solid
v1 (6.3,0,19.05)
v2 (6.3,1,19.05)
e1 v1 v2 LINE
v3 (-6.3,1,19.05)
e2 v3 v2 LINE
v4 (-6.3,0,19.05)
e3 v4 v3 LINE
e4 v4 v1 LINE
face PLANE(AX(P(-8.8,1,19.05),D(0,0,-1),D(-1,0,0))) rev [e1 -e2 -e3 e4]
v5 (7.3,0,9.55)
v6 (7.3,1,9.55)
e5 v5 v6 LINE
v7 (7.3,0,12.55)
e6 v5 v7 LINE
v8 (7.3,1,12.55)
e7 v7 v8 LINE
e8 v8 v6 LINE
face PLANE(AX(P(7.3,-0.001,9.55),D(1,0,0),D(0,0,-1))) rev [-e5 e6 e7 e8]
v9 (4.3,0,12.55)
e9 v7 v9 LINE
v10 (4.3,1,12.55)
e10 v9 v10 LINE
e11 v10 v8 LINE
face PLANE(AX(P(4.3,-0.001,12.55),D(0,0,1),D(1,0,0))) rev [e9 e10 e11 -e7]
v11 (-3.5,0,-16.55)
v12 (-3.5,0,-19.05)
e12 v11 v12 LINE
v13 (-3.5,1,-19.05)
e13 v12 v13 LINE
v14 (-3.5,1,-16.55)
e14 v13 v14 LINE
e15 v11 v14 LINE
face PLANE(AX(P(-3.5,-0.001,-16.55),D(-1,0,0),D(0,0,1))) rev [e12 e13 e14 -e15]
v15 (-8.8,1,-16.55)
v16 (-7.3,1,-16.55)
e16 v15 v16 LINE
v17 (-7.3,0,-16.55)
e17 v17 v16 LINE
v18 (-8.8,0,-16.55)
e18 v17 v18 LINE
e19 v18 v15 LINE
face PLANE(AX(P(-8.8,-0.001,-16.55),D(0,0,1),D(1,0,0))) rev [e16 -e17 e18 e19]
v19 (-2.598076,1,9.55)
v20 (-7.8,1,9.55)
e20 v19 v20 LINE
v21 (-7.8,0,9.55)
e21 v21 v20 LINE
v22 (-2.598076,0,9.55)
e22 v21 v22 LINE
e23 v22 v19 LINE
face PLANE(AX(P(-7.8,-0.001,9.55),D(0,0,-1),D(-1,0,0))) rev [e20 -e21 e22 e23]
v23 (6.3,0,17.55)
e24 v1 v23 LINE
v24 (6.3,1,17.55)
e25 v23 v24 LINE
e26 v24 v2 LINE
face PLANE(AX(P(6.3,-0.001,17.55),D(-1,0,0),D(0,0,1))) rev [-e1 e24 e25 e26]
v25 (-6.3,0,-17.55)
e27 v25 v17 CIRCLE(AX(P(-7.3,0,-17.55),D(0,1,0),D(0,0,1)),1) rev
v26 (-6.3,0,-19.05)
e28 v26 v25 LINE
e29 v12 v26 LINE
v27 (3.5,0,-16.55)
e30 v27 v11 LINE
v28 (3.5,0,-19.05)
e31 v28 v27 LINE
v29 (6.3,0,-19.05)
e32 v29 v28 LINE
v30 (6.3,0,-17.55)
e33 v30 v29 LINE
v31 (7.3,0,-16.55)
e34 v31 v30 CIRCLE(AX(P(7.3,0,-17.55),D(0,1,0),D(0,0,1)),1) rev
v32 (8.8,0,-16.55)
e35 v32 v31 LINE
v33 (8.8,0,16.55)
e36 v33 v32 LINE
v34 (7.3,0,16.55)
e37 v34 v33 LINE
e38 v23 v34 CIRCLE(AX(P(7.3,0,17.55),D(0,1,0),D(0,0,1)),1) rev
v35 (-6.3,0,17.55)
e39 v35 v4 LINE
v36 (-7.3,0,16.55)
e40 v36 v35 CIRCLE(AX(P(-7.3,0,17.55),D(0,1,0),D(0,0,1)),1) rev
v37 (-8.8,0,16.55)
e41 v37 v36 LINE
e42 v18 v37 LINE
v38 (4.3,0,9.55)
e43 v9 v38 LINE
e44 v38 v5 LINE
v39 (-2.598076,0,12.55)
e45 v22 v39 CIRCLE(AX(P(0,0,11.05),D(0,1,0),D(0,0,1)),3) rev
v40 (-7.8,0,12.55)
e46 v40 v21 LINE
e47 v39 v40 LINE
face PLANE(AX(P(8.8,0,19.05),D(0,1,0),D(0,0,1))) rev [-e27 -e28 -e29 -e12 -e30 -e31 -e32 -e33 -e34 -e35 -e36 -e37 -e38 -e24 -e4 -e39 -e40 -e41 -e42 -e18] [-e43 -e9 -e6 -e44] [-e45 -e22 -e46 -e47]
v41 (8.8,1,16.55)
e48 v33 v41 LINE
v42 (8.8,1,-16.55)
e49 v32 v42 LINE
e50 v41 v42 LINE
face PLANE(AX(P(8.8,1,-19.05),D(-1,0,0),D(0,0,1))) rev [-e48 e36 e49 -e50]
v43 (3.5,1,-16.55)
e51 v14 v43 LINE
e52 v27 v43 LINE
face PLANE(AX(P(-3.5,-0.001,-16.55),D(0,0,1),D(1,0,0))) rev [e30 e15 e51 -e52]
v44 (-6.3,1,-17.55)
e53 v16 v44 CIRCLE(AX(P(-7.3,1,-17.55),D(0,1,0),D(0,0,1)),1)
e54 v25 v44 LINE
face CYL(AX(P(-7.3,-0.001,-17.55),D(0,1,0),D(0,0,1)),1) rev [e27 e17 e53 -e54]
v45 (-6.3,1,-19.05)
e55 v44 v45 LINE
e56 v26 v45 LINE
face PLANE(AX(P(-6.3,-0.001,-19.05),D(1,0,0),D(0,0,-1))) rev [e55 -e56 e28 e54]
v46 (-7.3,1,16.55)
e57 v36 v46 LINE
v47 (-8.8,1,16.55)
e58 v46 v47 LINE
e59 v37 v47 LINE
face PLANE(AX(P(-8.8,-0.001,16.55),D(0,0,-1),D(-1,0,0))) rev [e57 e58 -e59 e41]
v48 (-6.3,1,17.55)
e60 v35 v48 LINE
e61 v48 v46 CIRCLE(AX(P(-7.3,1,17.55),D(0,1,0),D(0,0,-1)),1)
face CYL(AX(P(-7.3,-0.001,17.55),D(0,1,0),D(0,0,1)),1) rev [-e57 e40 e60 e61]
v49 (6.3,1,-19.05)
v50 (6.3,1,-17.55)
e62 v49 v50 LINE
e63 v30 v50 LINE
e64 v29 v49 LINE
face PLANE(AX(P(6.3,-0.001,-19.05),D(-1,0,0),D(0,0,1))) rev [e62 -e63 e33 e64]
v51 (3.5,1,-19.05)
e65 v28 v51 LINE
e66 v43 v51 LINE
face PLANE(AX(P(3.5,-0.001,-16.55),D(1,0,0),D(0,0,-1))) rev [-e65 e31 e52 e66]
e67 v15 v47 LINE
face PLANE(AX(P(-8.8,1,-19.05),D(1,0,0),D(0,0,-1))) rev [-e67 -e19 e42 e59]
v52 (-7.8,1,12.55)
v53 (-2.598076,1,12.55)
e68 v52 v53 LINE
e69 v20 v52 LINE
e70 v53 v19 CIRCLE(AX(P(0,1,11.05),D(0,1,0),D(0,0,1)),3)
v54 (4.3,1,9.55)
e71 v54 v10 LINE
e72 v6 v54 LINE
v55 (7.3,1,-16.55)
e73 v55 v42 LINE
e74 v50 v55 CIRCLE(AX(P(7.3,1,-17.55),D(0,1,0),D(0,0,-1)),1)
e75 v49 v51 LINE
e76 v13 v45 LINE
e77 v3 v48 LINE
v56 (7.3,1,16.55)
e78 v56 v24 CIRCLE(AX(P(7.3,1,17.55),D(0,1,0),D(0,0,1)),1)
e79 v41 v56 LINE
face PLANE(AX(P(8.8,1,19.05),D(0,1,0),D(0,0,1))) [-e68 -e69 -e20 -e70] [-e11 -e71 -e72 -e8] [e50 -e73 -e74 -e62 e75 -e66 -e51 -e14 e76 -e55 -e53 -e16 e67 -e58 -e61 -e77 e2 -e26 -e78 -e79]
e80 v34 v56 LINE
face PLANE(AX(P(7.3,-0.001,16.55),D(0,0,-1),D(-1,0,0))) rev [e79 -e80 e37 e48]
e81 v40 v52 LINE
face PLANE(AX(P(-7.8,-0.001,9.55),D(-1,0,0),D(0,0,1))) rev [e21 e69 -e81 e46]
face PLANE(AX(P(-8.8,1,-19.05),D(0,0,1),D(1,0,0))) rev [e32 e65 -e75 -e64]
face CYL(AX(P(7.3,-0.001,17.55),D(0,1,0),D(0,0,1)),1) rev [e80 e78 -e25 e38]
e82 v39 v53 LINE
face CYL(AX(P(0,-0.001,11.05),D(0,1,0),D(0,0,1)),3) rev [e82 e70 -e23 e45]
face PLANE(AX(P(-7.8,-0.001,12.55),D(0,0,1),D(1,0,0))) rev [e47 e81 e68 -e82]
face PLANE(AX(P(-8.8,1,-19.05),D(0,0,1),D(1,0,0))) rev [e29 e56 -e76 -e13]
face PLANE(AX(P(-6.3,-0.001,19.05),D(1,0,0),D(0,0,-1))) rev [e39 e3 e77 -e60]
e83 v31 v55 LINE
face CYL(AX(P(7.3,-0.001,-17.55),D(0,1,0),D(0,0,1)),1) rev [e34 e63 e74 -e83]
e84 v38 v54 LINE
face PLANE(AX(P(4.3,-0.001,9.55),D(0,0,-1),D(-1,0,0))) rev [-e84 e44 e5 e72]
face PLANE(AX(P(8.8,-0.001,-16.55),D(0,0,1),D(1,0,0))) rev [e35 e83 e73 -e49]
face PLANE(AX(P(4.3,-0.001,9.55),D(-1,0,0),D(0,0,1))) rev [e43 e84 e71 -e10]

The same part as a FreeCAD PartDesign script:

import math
import FreeCAD as App
import Part
import Sketcher
from FreeCAD import Vector


def add_polygon(sketch, points):
    """Adds a closed chain of lines whose ends are joined by coincident constraints."""
    first, n = sketch.GeometryCount, len(points)
    for a, b in zip(points, points[1:] + points[:1]):
        sketch.addGeometry(Part.LineSegment(App.Vector(*a, 0), App.Vector(*b, 0)), False)
    for i in range(n):
        sketch.addConstraint(Sketcher.Constraint("Coincident", first + i, 2, first + (i + 1) % n, 1))

doc = App.newDocument("Part")
body = doc.addObject("PartDesign::Body", "Body")

sketch1 = body.newObject("Sketcher::SketchObject", "Sketch")
sketch1.AttachmentSupport = (doc.getObject("XZ_Plane"), [""])
sketch1.MapMode = "FlatFace"
add_polygon(sketch1, [(-9, -19), (-9, 19), (9, 19), (9, -19)])
sketch1.addConstraint([
    Sketcher.Constraint("Vertical", 0),
    Sketcher.Constraint("Horizontal", 1),
    Sketcher.Constraint("Vertical", 2),
    Sketcher.Constraint("Horizontal", 3),
    Sketcher.Constraint("Symmetric", 0, 2, 2, 2, -1, 1),
    Sketcher.Constraint("DistanceX", 1, 1, 1, 2, 17.6),
    Sketcher.Constraint("DistanceY", 0, 1, 0, 2, 38.1),
])
pad1 = body.newObject("PartDesign::Pad", "Pad")
pad1.Profile = sketch1
pad1.Length = 1
pad1.Reversed = True

sketch2 = body.newObject("Sketcher::SketchObject", "Sketch001")
sketch2.AttachmentSupport = (doc.getObject("XZ_Plane"), [""])
sketch2.MapMode = "FlatFace"
sketch2.AttachmentOffset = App.Placement(Vector(0, 0, -1), App.Rotation())
add_polygon(sketch2, [(-3.5, -19.1), (-3.5, -16.6), (3.5, -16.6), (3.5, -19.1)])
sketch2.addConstraint([
    Sketcher.Constraint("Vertical", 0),
    Sketcher.Constraint("Horizontal", 1),
    Sketcher.Constraint("Vertical", 2),
    Sketcher.Constraint("Horizontal", 3),
    Sketcher.Constraint("DistanceX", 1, 1, 1, 2, 7.0),
    Sketcher.Constraint("DistanceY", 0, 1, 0, 2, 2.5),
    Sketcher.Constraint("DistanceX", 0, 2, -1, 1, 3.5),
    Sketcher.Constraint("DistanceY", 0, 2, -1, 1, 16.55),
])
pocket1 = body.newObject("PartDesign::Pocket", "Pocket")
pocket1.Profile = sketch2
pocket1.Type = "UpToFirst"
pocket1.Reversed = True

sketch3 = body.newObject("Sketcher::SketchObject", "Sketch002")
sketch3.AttachmentSupport = (doc.getObject("XZ_Plane"), [""])
sketch3.MapMode = "FlatFace"
sketch3.AttachmentOffset = App.Placement(Vector(0, 0, -1), App.Rotation())
sketch3.addGeometry([
    Part.LineSegment(Vector(8.8, -19.1, 0), Vector(6.3, -19.1, 0)),
    Part.LineSegment(Vector(6.3, -19.1, 0), Vector(6.3, -17.6, 0)),
    Part.ArcOfCircle(Part.Circle(Vector(7.3, -17.6, 0), Vector(0, 0, 1), 1), math.radians(90), math.radians(180)),
    Part.LineSegment(Vector(7.3, -16.6, 0), Vector(8.8, -16.6, 0)),
    Part.LineSegment(Vector(8.8, -16.6, 0), Vector(8.8, -19.1, 0)),
], False)
sketch3.addConstraint([
    Sketcher.Constraint("Coincident", 0, 2, 1, 1),
    Sketcher.Constraint("Tangent", 1, 2, 2, 2),
    Sketcher.Constraint("Tangent", 2, 1, 3, 1),
    Sketcher.Constraint("Coincident", 3, 2, 4, 1),
    Sketcher.Constraint("Coincident", 4, 2, 0, 1),
    Sketcher.Constraint("Horizontal", 0),
    Sketcher.Constraint("Vertical", 1),
    Sketcher.Constraint("Horizontal", 3),
    Sketcher.Constraint("Vertical", 4),
    Sketcher.Constraint("Equal", 3, 1),
    Sketcher.Constraint("Radius", 2, 1.0),
    Sketcher.Constraint("DistanceX", 0, 2, 0, 1, 2.5),
    Sketcher.Constraint("DistanceX", -1, 1, 2, 3, 7.3),
    Sketcher.Constraint("DistanceY", 2, 3, -1, 1, 17.55),
])
pocket2 = body.newObject("PartDesign::Pocket", "Pocket001")
pocket2.Profile = sketch3
pocket2.Type = "UpToFirst"
pocket2.Reversed = True

sketch4 = body.newObject("Sketcher::SketchObject", "Sketch003")
sketch4.AttachmentSupport = (doc.getObject("XZ_Plane"), [""])
sketch4.MapMode = "FlatFace"
sketch4.AttachmentOffset = App.Placement(Vector(0, 0, -1), App.Rotation())
sketch4.addGeometry([
    Part.LineSegment(Vector(-6.3, -19.1, 0), Vector(-8.8, -19.1, 0)),
    Part.LineSegment(Vector(-8.8, -19.1, 0), Vector(-8.8, -16.6, 0)),
    Part.LineSegment(Vector(-8.8, -16.6, 0), Vector(-7.3, -16.6, 0)),
    Part.ArcOfCircle(Part.Circle(Vector(-7.3, -17.6, 0), Vector(0, 0, 1), 1), math.radians(0), math.radians(90)),
    Part.LineSegment(Vector(-6.3, -17.6, 0), Vector(-6.3, -19.1, 0)),
], False)
sketch4.addConstraint([
    Sketcher.Constraint("Coincident", 0, 2, 1, 1),
    Sketcher.Constraint("Coincident", 1, 2, 2, 1),
    Sketcher.Constraint("Tangent", 2, 2, 3, 2),
    Sketcher.Constraint("Tangent", 3, 1, 4, 1),
    Sketcher.Constraint("Coincident", 4, 2, 0, 1),
    Sketcher.Constraint("Horizontal", 0),
    Sketcher.Constraint("Vertical", 1),
    Sketcher.Constraint("Horizontal", 2),
    Sketcher.Constraint("Vertical", 4),
    Sketcher.Constraint("Equal", 0, 1),
    Sketcher.Constraint("Radius", 3, 1.0),
    Sketcher.Constraint("DistanceX", 0, 2, 0, 1, 2.5),
    Sketcher.Constraint("DistanceX", 3, 3, -1, 1, 7.3),
    Sketcher.Constraint("DistanceY", 3, 3, -1, 1, 17.55),
])
pocket3 = body.newObject("PartDesign::Pocket", "Pocket002")
pocket3.Profile = sketch4
pocket3.Type = "UpToFirst"
pocket3.Reversed = True

sketch5 = body.newObject("Sketcher::SketchObject", "Sketch004")
sketch5.AttachmentSupport = (doc.getObject("XZ_Plane"), [""])
sketch5.MapMode = "FlatFace"
sketch5.AttachmentOffset = App.Placement(Vector(0, 0, -1), App.Rotation())
sketch5.addGeometry([
    Part.LineSegment(Vector(-8.8, 19.1, 0), Vector(-6.3, 19.1, 0)),
    Part.LineSegment(Vector(-6.3, 19.1, 0), Vector(-6.3, 17.6, 0)),
    Part.ArcOfCircle(Part.Circle(Vector(-7.3, 17.6, 0), Vector(0, 0, 1), 1), math.radians(-90), math.radians(0)),
    Part.LineSegment(Vector(-7.3, 16.6, 0), Vector(-8.8, 16.6, 0)),
    Part.LineSegment(Vector(-8.8, 16.6, 0), Vector(-8.8, 19.1, 0)),
], False)
sketch5.addConstraint([
    Sketcher.Constraint("Coincident", 0, 2, 1, 1),
    Sketcher.Constraint("Tangent", 1, 2, 2, 2),
    Sketcher.Constraint("Tangent", 2, 1, 3, 1),
    Sketcher.Constraint("Coincident", 3, 2, 4, 1),
    Sketcher.Constraint("Coincident", 4, 2, 0, 1),
    Sketcher.Constraint("Horizontal", 0),
    Sketcher.Constraint("Vertical", 1),
    Sketcher.Constraint("Horizontal", 3),
    Sketcher.Constraint("Vertical", 4),
    Sketcher.Constraint("Equal", 3, 1),
    Sketcher.Constraint("Radius", 2, 1.0),
    Sketcher.Constraint("DistanceX", 0, 1, 0, 2, 2.5),
    Sketcher.Constraint("DistanceX", 2, 3, -1, 1, 7.3),
    Sketcher.Constraint("DistanceY", -1, 1, 2, 3, 17.55),
])
pocket4 = body.newObject("PartDesign::Pocket", "Pocket003")
pocket4.Profile = sketch5
pocket4.Type = "UpToFirst"
pocket4.Reversed = True

sketch6 = body.newObject("Sketcher::SketchObject", "Sketch005")
sketch6.AttachmentSupport = (doc.getObject("XZ_Plane"), [""])
sketch6.MapMode = "FlatFace"
sketch6.AttachmentOffset = App.Placement(Vector(0, 0, -1), App.Rotation())
sketch6.addGeometry([
    Part.LineSegment(Vector(8.8, 16.6, 0), Vector(7.3, 16.6, 0)),
    Part.ArcOfCircle(Part.Circle(Vector(7.3, 17.6, 0), Vector(0, 0, 1), 1), math.radians(-180), math.radians(-90)),
    Part.LineSegment(Vector(6.3, 17.6, 0), Vector(6.3, 19.1, 0)),
    Part.LineSegment(Vector(6.3, 19.1, 0), Vector(8.8, 19.1, 0)),
    Part.LineSegment(Vector(8.8, 19.1, 0), Vector(8.8, 16.6, 0)),
], False)
sketch6.addConstraint([
    Sketcher.Constraint("Tangent", 0, 2, 1, 2),
    Sketcher.Constraint("Tangent", 1, 1, 2, 1),
    Sketcher.Constraint("Coincident", 2, 2, 3, 1),
    Sketcher.Constraint("Coincident", 3, 2, 4, 1),
    Sketcher.Constraint("Coincident", 4, 2, 0, 1),
    Sketcher.Constraint("Horizontal", 0),
    Sketcher.Constraint("Vertical", 2),
    Sketcher.Constraint("Horizontal", 3),
    Sketcher.Constraint("Vertical", 4),
    Sketcher.Constraint("Equal", 0, 2),
    Sketcher.Constraint("Radius", 1, 1.0),
    Sketcher.Constraint("DistanceX", 0, 2, 0, 1, 1.5),
    Sketcher.Constraint("DistanceX", -1, 1, 1, 3, 7.3),
    Sketcher.Constraint("DistanceY", -1, 1, 1, 3, 17.55),
])
pocket5 = body.newObject("PartDesign::Pocket", "Pocket004")
pocket5.Profile = sketch6
pocket5.Type = "UpToFirst"
pocket5.Reversed = True

sketch7 = body.newObject("Sketcher::SketchObject", "Sketch006")
sketch7.AttachmentSupport = (doc.getObject("XZ_Plane"), [""])
sketch7.MapMode = "FlatFace"
sketch7.AttachmentOffset = App.Placement(Vector(0, 0, -1), App.Rotation())
sketch7.addGeometry([
    Part.LineSegment(Vector(-2.6, 9.6, 0), Vector(-7.8, 9.6, 0)),
    Part.LineSegment(Vector(-7.8, 9.6, 0), Vector(-7.8, 12.6, 0)),
    Part.LineSegment(Vector(-7.8, 12.6, 0), Vector(-2.6, 12.6, 0)),
    Part.ArcOfCircle(Part.Circle(Vector(0, 11.1, 0), Vector(0, 0, 1), 3), math.radians(-150), math.radians(150)),
], False)
sketch7.addConstraint([
    Sketcher.Constraint("Coincident", 0, 2, 1, 1),
    Sketcher.Constraint("Coincident", 1, 2, 2, 1),
    Sketcher.Constraint("Coincident", 2, 2, 3, 2),
    Sketcher.Constraint("Coincident", 3, 1, 0, 1),
    Sketcher.Constraint("Horizontal", 0),
    Sketcher.Constraint("Vertical", 1),
    Sketcher.Constraint("Horizontal", 2),
    Sketcher.Constraint("PointOnObject", 3, 3, -2),
    Sketcher.Constraint("Vertical", 2, 2, 3, 1),
    Sketcher.Constraint("Radius", 3, 3.0),
    Sketcher.Constraint("DistanceY", 1, 1, 1, 2, 3.0),
    Sketcher.Constraint("DistanceX", 0, 2, -1, 1, 7.8),
    Sketcher.Constraint("DistanceY", -1, 1, 3, 3, 11.05),
])
pocket6 = body.newObject("PartDesign::Pocket", "Pocket005")
pocket6.Profile = sketch7
pocket6.Type = "UpToFirst"
pocket6.Reversed = True

sketch8 = body.newObject("Sketcher::SketchObject", "Sketch007")
sketch8.AttachmentSupport = (doc.getObject("XZ_Plane"), [""])
sketch8.MapMode = "FlatFace"
sketch8.AttachmentOffset = App.Placement(Vector(0, 0, -1), App.Rotation())
add_polygon(sketch8, [(4.3, 9.6), (4.3, 12.6), (7.3, 12.6), (7.3, 9.6)])
sketch8.addConstraint([
    Sketcher.Constraint("Vertical", 0),
    Sketcher.Constraint("Horizontal", 1),
    Sketcher.Constraint("Vertical", 2),
    Sketcher.Constraint("Horizontal", 3),
    Sketcher.Constraint("Equal", 3, 0),
    Sketcher.Constraint("DistanceX", 1, 1, 1, 2, 3.0),
    Sketcher.Constraint("DistanceX", -1, 1, 0, 2, 4.3),
    Sketcher.Constraint("DistanceY", -1, 1, 0, 2, 12.55),
])
pocket7 = body.newObject("PartDesign::Pocket", "Pocket006")
pocket7.Profile = sketch8
pocket7.Type = "UpToFirst"
pocket7.Reversed = True

doc.recompute()
